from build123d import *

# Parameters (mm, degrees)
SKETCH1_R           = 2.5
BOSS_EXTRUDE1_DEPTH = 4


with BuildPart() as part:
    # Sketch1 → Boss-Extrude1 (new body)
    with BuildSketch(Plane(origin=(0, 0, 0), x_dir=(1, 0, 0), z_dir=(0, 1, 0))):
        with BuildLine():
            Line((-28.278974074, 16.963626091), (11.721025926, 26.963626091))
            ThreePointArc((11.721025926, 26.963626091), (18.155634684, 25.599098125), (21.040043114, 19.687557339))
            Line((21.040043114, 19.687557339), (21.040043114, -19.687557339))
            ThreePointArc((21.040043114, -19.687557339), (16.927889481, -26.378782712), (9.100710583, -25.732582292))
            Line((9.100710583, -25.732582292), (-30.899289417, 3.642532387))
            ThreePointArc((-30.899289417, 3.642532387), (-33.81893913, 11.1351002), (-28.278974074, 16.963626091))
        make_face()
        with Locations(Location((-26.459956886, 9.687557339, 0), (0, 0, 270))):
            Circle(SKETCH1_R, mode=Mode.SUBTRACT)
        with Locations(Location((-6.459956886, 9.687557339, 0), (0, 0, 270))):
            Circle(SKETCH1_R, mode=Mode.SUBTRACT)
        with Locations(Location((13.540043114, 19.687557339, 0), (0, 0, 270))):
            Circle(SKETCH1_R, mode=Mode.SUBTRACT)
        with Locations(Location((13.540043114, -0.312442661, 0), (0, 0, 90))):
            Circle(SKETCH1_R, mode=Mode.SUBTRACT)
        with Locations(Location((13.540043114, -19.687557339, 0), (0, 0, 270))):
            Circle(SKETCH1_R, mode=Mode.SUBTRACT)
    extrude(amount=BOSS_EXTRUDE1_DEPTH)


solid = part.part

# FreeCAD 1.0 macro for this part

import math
import FreeCAD as App
import Part
import Sketcher

V = App.Vector

doc = App.newDocument("Part")
body = doc.addObject("PartDesign::Body", "Body")

sketch1 = body.newObject("Sketcher::SketchObject", "Sketch")
sketch1.AttachmentSupport = (doc.getObject("XZ_Plane"), [""])
sketch1.MapMode = "FlatFace"
sketch1.addGeometry([
    Part.LineSegment(V(11.7, -27, 0), V(-28.3, -17, 0)),
    Part.ArcOfCircle(Part.Circle(V(-26.5, -9.7, 0), V(0, 0, 1), 7.5), math.radians(126), math.radians(256)),
    Part.LineSegment(V(-30.9, -3.6, 0), V(9.1, 25.7, 0)),
    Part.ArcOfCircle(Part.Circle(V(13.5, 19.7, 0), V(0, 0, 1), 7.5), math.radians(0), math.radians(126)),
    Part.LineSegment(V(21, 19.7, 0), V(21, -19.7, 0)),
    Part.ArcOfCircle(Part.Circle(V(13.5, -19.7, 0), V(0, 0, 1), 7.5), math.radians(-104), math.radians(0)),
    Part.Circle(V(13.5, 19.7, 0), V(0, 0, 1), 2.5),
    Part.Circle(V(13.5, 0.3, 0), V(0, 0, 1), 2.5),
    Part.Circle(V(13.5, -19.7, 0), V(0, 0, 1), 2.5),
    Part.Circle(V(-6.5, -9.7, 0), V(0, 0, 1), 2.5),
    Part.Circle(V(-26.5, -9.7, 0), V(0, 0, 1), 2.5),
], False)
sketch1.addConstraint([
    Sketcher.Constraint("Tangent", 0, 2, 1, 2),
    Sketcher.Constraint("Tangent", 1, 1, 2, 1),
    Sketcher.Constraint("Tangent", 2, 2, 3, 2),
    Sketcher.Constraint("Tangent", 3, 1, 4, 1),
    Sketcher.Constraint("Tangent", 4, 2, 5, 2),
    Sketcher.Constraint("Tangent", 5, 1, 0, 1),
    Sketcher.Constraint("Vertical", 4),
    Sketcher.Constraint("Coincident", 6, 3, 3, 3),
    Sketcher.Constraint("Coincident", 8, 3, 5, 3),
    Sketcher.Constraint("Coincident", 10, 3, 1, 3),
    Sketcher.Constraint("Equal", 1, 3),
    Sketcher.Constraint("Equal", 3, 5),
    Sketcher.Constraint("Equal", 6, 7),
    Sketcher.Constraint("Equal", 7, 8),
    Sketcher.Constraint("Equal", 8, 9),
    Sketcher.Constraint("Equal", 9, 10),
    Sketcher.Constraint("Horizontal", 1, 3, 9, 3),
    Sketcher.Constraint("Vertical", 6, 3, 7, 3),
    Sketcher.Constraint("Diameter", 6, 5.0),
    Sketcher.Constraint("Radius", 1, 7.5),
    Sketcher.Constraint("DistanceX", 1, 3, 3, 3, 40.0),
    Sketcher.Constraint("DistanceY", 5, 3, 1, 3, 10.0),
    Sketcher.Constraint("DistanceY", 5, 3, 7, 3, 20.0),
    Sketcher.Constraint("DistanceX", 1, 3, 9, 3, 20.0),
    Sketcher.Constraint("DistanceY", 4, 2, 4, 1, 39.375115),
    Sketcher.Constraint("DistanceX", 1, 1, -1, 1, 30.899289),
    Sketcher.Constraint("DistanceY", 1, 3, -1, 1, 9.687557),
])
pad1 = body.newObject("PartDesign::Pad", "Pad")
pad1.Profile = sketch1
pad1.Length = 4
pad1.Reversed = True

doc.recompute()
